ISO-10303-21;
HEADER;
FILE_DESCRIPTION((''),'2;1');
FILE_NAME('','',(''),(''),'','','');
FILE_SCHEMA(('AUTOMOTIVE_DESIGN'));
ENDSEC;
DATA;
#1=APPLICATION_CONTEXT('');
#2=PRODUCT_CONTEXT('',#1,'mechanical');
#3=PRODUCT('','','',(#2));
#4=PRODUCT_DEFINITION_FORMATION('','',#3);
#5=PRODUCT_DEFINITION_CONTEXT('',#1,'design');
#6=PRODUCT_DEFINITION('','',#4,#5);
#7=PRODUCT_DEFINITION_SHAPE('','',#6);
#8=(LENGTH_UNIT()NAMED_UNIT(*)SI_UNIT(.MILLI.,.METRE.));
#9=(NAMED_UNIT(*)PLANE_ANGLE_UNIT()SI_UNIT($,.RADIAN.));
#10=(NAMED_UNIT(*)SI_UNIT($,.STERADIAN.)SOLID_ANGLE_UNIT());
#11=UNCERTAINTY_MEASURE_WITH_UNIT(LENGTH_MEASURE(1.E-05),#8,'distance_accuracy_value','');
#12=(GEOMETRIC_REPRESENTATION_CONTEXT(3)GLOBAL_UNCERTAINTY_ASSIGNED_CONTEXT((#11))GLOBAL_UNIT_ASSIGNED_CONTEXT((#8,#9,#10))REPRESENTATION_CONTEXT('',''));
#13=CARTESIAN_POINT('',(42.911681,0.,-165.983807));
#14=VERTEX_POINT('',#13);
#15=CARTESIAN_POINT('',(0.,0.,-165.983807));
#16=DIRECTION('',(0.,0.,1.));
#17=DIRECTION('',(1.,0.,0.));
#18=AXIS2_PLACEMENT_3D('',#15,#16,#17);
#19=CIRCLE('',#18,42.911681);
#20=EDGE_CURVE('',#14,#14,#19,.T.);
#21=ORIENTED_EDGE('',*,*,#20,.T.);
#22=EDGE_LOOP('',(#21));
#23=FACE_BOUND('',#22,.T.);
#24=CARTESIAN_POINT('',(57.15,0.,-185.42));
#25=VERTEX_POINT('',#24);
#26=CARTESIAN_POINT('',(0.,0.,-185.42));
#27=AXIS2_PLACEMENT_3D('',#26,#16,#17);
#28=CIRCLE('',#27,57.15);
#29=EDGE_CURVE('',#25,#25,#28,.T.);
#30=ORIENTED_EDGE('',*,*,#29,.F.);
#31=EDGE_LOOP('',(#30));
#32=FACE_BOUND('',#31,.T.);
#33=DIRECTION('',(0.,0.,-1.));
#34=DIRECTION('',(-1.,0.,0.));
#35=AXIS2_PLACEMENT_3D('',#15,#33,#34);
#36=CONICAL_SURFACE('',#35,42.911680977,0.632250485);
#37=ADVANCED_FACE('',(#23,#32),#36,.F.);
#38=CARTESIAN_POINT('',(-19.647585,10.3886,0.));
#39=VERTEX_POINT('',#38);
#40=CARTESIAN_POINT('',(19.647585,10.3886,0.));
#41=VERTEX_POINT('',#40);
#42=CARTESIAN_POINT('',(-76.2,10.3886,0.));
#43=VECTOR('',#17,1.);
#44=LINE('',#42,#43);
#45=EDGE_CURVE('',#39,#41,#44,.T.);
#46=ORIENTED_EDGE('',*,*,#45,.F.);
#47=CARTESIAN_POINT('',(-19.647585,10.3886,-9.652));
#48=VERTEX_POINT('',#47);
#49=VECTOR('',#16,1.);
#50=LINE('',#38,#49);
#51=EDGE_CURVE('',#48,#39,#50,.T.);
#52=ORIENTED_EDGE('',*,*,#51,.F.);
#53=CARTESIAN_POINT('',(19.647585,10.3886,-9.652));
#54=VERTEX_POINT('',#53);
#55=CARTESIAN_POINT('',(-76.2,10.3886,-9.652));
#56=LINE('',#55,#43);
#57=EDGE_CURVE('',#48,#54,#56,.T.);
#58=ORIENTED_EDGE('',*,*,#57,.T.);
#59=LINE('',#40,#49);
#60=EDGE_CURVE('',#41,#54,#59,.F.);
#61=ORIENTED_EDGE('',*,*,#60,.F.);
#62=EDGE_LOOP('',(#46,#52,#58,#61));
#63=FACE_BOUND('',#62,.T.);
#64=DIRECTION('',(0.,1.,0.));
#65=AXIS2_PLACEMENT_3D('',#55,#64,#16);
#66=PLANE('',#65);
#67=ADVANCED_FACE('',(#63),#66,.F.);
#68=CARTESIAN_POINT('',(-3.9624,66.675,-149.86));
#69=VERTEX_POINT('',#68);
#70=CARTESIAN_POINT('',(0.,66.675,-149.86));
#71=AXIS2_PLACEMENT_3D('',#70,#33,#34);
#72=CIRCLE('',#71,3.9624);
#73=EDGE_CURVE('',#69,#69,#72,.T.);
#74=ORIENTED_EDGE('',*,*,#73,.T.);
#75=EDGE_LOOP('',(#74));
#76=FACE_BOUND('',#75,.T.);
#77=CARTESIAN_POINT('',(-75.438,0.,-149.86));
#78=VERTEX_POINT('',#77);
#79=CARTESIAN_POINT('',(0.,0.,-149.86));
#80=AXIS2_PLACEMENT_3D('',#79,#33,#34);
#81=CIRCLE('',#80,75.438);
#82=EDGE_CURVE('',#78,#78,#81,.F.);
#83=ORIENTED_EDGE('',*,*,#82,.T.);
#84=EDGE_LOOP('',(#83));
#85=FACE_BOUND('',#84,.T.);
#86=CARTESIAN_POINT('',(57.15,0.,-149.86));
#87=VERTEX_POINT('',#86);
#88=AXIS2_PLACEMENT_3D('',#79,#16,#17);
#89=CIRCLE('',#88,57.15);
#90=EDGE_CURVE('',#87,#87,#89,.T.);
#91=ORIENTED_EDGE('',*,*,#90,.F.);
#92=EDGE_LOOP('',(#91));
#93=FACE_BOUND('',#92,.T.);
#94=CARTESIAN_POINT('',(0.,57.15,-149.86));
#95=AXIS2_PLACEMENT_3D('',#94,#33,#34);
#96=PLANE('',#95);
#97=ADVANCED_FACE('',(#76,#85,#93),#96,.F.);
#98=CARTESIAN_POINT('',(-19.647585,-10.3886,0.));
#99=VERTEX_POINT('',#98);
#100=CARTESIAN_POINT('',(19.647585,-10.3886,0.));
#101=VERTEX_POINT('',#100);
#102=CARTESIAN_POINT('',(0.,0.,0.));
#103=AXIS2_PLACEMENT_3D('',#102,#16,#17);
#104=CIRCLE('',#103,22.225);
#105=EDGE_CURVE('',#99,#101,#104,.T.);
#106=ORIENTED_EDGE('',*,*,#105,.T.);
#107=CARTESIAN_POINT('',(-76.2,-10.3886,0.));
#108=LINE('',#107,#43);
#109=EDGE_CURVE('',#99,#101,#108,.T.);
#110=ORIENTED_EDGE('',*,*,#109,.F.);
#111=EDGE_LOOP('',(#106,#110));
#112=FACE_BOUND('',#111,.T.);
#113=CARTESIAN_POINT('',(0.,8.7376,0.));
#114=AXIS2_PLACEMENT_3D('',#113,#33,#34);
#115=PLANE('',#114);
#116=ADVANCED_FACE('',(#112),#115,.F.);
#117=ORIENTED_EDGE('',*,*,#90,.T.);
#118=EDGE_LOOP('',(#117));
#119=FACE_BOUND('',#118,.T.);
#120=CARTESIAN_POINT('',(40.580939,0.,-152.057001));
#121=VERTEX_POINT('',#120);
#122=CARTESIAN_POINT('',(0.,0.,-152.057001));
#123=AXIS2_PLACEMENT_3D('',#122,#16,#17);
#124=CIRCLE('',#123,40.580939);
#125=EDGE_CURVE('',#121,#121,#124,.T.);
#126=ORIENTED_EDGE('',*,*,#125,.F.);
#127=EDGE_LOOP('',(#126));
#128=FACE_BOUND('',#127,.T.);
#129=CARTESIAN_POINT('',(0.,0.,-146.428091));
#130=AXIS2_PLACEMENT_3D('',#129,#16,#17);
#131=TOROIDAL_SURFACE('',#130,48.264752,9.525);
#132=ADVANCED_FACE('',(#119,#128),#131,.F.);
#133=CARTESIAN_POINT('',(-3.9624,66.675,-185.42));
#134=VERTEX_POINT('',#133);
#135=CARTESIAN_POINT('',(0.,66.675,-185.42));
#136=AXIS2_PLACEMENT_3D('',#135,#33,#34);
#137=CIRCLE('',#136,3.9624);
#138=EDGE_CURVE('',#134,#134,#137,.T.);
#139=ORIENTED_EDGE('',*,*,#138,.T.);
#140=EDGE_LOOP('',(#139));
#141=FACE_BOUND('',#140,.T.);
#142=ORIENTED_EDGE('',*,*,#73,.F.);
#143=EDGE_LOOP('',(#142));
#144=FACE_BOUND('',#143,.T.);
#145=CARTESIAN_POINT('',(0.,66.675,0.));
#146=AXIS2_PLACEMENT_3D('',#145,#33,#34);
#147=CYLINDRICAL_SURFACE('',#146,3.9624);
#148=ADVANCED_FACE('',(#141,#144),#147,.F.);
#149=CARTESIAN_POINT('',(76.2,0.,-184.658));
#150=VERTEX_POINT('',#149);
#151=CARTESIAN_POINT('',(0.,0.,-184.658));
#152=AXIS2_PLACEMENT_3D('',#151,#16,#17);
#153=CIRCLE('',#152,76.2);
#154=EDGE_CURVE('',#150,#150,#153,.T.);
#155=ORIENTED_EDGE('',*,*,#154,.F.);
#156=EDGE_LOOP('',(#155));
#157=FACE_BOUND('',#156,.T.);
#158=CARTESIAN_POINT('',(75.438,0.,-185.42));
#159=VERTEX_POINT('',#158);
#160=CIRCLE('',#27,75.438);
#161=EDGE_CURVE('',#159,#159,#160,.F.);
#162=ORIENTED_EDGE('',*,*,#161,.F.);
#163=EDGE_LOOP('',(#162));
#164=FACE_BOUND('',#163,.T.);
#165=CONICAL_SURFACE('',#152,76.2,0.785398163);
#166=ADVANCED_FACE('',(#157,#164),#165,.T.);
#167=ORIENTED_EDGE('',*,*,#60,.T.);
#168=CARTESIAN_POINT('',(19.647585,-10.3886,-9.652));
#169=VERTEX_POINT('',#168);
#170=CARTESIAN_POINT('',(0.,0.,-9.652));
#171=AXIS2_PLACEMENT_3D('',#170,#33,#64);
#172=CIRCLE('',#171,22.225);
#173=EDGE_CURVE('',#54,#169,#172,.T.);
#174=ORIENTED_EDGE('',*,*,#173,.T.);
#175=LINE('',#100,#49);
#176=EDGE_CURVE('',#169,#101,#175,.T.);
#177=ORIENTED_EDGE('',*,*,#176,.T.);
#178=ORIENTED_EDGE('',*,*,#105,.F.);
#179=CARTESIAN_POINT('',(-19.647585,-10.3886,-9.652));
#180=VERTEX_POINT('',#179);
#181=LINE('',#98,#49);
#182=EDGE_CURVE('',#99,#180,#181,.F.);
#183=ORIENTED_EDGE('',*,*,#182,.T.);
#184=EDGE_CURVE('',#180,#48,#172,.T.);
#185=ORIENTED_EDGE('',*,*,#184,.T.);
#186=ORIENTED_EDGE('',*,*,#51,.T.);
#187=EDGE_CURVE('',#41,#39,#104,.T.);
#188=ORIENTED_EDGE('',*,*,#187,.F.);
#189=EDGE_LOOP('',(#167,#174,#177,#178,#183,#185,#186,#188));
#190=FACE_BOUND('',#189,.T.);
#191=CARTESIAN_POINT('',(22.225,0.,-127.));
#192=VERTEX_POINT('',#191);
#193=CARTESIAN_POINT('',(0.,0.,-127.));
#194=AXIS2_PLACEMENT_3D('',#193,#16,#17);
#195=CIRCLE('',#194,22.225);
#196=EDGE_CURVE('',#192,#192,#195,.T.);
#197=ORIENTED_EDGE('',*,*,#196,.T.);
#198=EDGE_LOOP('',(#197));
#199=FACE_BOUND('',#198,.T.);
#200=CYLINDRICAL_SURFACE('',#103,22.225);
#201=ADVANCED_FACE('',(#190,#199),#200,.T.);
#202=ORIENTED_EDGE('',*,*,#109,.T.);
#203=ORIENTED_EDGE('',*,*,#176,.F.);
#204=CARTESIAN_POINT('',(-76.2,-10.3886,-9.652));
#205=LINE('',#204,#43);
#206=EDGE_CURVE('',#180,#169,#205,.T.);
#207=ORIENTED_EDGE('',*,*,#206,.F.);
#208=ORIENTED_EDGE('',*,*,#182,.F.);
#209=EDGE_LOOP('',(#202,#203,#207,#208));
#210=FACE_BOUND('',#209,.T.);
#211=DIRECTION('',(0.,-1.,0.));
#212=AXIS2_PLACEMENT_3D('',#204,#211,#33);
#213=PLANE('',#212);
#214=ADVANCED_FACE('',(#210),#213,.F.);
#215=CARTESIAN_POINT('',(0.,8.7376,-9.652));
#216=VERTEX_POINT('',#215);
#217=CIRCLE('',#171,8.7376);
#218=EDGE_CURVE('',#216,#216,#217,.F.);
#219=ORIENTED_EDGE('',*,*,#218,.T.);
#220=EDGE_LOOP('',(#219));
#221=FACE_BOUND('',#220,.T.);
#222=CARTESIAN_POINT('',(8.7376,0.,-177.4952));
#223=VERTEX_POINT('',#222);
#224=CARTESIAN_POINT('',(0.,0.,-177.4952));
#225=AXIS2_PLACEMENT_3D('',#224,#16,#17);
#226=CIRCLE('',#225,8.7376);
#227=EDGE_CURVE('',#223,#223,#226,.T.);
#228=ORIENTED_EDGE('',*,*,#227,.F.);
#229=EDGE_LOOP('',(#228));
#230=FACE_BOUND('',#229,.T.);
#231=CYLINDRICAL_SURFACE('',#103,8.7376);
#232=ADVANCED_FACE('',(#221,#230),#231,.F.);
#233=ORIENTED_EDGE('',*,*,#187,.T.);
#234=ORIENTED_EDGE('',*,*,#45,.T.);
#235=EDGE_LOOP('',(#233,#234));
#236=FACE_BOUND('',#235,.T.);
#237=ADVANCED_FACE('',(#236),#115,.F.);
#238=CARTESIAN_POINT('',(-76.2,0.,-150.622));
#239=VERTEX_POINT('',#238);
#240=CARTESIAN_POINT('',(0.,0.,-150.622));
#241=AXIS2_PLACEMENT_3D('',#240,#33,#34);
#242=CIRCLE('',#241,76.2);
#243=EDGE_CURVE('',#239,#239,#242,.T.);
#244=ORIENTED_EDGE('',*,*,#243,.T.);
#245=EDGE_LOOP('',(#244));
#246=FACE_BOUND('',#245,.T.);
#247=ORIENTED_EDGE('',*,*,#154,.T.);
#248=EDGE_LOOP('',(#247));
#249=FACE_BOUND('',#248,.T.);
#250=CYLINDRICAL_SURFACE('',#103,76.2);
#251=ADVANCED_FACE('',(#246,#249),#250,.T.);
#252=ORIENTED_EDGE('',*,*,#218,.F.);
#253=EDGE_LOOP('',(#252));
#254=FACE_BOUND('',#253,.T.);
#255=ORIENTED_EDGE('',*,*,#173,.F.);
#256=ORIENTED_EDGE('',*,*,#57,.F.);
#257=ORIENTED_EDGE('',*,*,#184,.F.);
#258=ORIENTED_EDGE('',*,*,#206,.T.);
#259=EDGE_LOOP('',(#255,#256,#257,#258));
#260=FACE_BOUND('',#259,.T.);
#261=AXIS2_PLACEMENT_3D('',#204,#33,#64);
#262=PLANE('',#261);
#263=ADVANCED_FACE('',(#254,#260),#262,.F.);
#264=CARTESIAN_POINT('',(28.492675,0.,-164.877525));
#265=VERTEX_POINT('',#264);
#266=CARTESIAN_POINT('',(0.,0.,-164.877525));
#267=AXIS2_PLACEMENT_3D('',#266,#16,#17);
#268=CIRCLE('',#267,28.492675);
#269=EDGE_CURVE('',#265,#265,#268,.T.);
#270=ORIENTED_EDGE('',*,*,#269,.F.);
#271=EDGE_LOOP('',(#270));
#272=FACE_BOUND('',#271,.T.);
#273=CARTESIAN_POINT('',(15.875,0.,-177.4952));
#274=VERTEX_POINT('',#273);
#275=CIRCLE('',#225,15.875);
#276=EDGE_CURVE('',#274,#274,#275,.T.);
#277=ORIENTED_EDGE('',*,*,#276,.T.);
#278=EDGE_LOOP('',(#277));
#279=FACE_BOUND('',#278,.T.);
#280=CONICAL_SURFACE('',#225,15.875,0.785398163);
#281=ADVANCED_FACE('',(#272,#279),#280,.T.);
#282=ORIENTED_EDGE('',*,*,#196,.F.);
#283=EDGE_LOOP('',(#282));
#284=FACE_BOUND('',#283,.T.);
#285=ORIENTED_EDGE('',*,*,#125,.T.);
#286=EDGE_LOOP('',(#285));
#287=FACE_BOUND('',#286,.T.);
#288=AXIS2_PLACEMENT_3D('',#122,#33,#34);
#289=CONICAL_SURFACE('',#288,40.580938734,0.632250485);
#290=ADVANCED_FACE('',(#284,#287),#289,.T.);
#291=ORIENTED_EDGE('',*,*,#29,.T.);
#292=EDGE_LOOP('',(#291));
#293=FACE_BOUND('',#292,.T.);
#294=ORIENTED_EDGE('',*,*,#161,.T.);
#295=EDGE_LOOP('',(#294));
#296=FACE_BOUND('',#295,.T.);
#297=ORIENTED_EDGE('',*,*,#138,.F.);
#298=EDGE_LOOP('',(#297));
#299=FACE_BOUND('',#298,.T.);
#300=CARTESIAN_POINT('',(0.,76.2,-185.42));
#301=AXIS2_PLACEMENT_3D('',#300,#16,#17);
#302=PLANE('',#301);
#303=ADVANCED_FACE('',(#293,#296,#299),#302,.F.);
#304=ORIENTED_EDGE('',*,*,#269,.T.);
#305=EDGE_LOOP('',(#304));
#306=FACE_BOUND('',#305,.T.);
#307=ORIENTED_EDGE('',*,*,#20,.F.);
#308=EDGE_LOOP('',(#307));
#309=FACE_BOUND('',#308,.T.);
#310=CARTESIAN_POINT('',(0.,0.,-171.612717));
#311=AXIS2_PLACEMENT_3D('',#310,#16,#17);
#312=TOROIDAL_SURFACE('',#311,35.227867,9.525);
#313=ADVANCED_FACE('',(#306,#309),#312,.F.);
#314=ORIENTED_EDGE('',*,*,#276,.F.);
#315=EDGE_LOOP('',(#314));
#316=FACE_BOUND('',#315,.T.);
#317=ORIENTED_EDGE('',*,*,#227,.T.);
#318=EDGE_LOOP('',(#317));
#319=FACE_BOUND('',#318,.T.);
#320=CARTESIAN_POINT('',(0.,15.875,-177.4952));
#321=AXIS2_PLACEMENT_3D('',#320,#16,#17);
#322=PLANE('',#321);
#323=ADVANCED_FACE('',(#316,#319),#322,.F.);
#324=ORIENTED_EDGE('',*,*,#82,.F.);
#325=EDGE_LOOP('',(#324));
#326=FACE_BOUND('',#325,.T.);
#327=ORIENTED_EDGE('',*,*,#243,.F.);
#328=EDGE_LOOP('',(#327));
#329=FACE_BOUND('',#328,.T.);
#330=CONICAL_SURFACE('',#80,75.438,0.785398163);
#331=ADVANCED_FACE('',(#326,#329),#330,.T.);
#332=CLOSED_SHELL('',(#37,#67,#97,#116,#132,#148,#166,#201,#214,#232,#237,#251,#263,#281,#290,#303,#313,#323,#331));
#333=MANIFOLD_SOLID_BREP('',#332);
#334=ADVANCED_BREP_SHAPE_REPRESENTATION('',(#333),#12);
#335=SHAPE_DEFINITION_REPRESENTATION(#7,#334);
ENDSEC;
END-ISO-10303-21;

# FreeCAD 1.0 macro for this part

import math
import FreeCAD as App
import Part
import Sketcher

V = App.Vector
Q = App.Units.Quantity


def edges_at(feature, points):
    """Names of the edges that pass closest to the given points."""
    edges = feature.Shape.Edges
    near = lambda p: min(range(len(edges)), key=lambda i: edges[i].distToShape(Part.Vertex(*p))[0])
    return sorted({f"Edge{near(p) + 1}" for p in points})


def add_polygon(sketch, points):
    """Adds a closed chain of lines whose ends are joined by coincident constraints."""
    first, n = sketch.GeometryCount, len(points)
    for a, b in zip(points, points[1:] + points[:1]):
        sketch.addGeometry(Part.LineSegment(App.Vector(*a, 0), App.Vector(*b, 0)), False)
    for i in range(n):
        sketch.addConstraint(Sketcher.Constraint("Coincident", first + i, 2, first + (i + 1) % n, 1))

doc = App.newDocument("Part")
body = doc.addObject("PartDesign::Body", "Body")

# Sketch on YZ plane
sketch1 = body.newObject("Sketcher::SketchObject", "Sketch")
sketch1.AttachmentSupport = (doc.getObject("YZ_Plane"), [""])
sketch1.MapMode = "FlatFace"
sketch1.addGeometry([
    Part.LineSegment(V(22, 0, 0), V(9, 0, 0)),  # 0
    Part.LineSegment(V(9, 0, 0), V(9, -177, 0)),  # 1
    Part.LineSegment(V(9, -177, 0), V(16, -177, 0)),  # 2
    Part.LineSegment(V(16, -177, 0), V(28, -165, 0)),  # 3
    Part.ArcOfCircle(Part.Circle(V(35, -172, 0), V(0, 0, 1), 10), math.radians(36), math.radians(135)),  # 4
    Part.LineSegment(V(43, -166, 0), V(57, -185, 0)),  # 5
    Part.LineSegment(V(57, -185, 0), V(76, -185, 0)),  # 6
    Part.LineSegment(V(76, -185, 0), V(76, -150, 0)),  # 7
    Part.LineSegment(V(76, -150, 0), V(57, -150, 0)),  # 8
    Part.ArcOfCircle(Part.Circle(V(48, -146, 0), V(0, 0, 1), 10), math.radians(-144), math.radians(-21)),  # 9
    Part.LineSegment(V(41, -152, 0), V(22, -127, 0)),  # 10
    Part.LineSegment(V(22, -127, 0), V(22, 0, 0)),  # 11
], False)
sketch1.addConstraint([
    Sketcher.Constraint("Coincident", 0, 2, 1, 1),
    Sketcher.Constraint("Coincident", 1, 2, 2, 1),
    Sketcher.Constraint("Coincident", 2, 2, 3, 1),
    Sketcher.Constraint("Tangent", 3, 2, 4, 2),
    Sketcher.Constraint("Tangent", 4, 1, 5, 1),
    Sketcher.Constraint("Coincident", 5, 2, 6, 1),
    Sketcher.Constraint("Coincident", 6, 2, 7, 1),
    Sketcher.Constraint("Coincident", 7, 2, 8, 1),
    Sketcher.Constraint("Coincident", 8, 2, 9, 2),
    Sketcher.Constraint("Tangent", 9, 1, 10, 1),
    Sketcher.Constraint("Coincident", 10, 2, 11, 1),
    Sketcher.Constraint("Coincident", 11, 2, 0, 1),
    Sketcher.Constraint("Horizontal", 0),
    Sketcher.Constraint("Vertical", 1),
    Sketcher.Constraint("Horizontal", 2),
    Sketcher.Constraint("Horizontal", 6),
    Sketcher.Constraint("Vertical", 7),
    Sketcher.Constraint("Horizontal", 8),
    Sketcher.Constraint("Vertical", 11),
    Sketcher.Constraint("Equal", 4, 9),
    Sketcher.Constraint("PointOnObject", 0, 2, -1),
    Sketcher.Constraint("Parallel", 5, 10),
    Sketcher.Constraint("Vertical", 5, 2, 8, 2),
    Sketcher.Constraint("DistanceY", 11, 1, 11, 2, Q("5 in")),
    Sketcher.Constraint("DistanceY", 7, 1, 7, 2, Q("1.4 in")),
    Sketcher.Constraint("DistanceX", -1, 1, 6, 2, Q("3 in")),
    Sketcher.Constraint("Angle", 3, Q("45 deg")),
    Sketcher.Constraint("Radius", 4, Q("0.375 in")),
    Sketcher.Constraint("DistanceX", 6, 1, 6, 2, Q("0.75 in")),
    Sketcher.Constraint("DistanceY", 5, 2, -1, 1, Q("7.3 in")),
    Sketcher.Constraint("DistanceX", 0, 2, 0, 1, Q("0.531 in")),
    Sketcher.Constraint("DistanceX", 2, 1, 2, 2, Q("0.281 in")),
    Sketcher.Constraint("DistanceY", 1, 2, 1, 1, Q("6.988 in")),
    Sketcher.Constraint("DistanceX", -1, 1, 0, 2, Q("0.344 in")),
    Sketcher.Constraint("DistanceY", 9, 1, -1, 1, Q("152.057001 mm")),
])
revolution = body.newObject("PartDesign::Revolution", "Revolution")
revolution.Profile = sketch1
revolution.ReferenceAxis = (sketch1, ["V_Axis"])
revolution.Angle = 360
doc.recompute()

chamfer = body.newObject("PartDesign::Chamfer", "Chamfer")
chamfer.Base = (revolution, edges_at(revolution, [(-76.2, 0, -185.42), (-76.2, 0, -149.86)]))
chamfer.Size = Q("0.03 in")

# Sketch on YZ plane
sketch2 = body.newObject("Sketcher::SketchObject", "Sketch001")
sketch2.AttachmentSupport = (doc.getObject("YZ_Plane"), [""])
sketch2.MapMode = "FlatFace"
add_polygon(sketch2, [(10, 0), (-10, 0), (-10, -10), (10, -10)])  # lines 0-3
sketch2.addConstraint([
    Sketcher.Constraint("Horizontal", 0),
    Sketcher.Constraint("Vertical", 1),
    Sketcher.Constraint("Horizontal", 2),
    Sketcher.Constraint("Vertical", 3),
    Sketcher.Constraint("Symmetric", 0, 2, 3, 2, -1, 1),
    Sketcher.Constraint("DistanceY", 1, 2, 1, 1, Q("0.38 in")),
    Sketcher.Constraint("DistanceX", 0, 2, 0, 1, Q("0.818 in")),
])
pocket1 = body.newObject("PartDesign::Pocket", "Pocket")
pocket1.Profile = sketch2
pocket1.Type = "ThroughAll"
pocket1.Midplane = True

# Sketch on XY plane
sketch3 = body.newObject("Sketcher::SketchObject", "Sketch002")
sketch3.AttachmentSupport = (doc.getObject("XY_Plane"), [""])
sketch3.MapMode = "FlatFace"
sketch3.AttachmentOffset = App.Placement(V(0, 0, -7.3 * 25.4), App.Rotation())
sketch3.addGeometry(Part.Circle(V(0, 66.7, 0), V(0, 0, 1), 4), False)
sketch3.addConstraint([
    Sketcher.Constraint("PointOnObject", 0, 3, -2),
    Sketcher.Constraint("Diameter", 0, Q("0.312 in")),
    Sketcher.Constraint("DistanceY", -1, 1, 0, 3, Q("2.625 in")),
])
pocket2 = body.newObject("PartDesign::Pocket", "Pocket001")
pocket2.Profile = sketch3
pocket2.Type = "ThroughAll"
pocket2.Reversed = True

doc.recompute()
